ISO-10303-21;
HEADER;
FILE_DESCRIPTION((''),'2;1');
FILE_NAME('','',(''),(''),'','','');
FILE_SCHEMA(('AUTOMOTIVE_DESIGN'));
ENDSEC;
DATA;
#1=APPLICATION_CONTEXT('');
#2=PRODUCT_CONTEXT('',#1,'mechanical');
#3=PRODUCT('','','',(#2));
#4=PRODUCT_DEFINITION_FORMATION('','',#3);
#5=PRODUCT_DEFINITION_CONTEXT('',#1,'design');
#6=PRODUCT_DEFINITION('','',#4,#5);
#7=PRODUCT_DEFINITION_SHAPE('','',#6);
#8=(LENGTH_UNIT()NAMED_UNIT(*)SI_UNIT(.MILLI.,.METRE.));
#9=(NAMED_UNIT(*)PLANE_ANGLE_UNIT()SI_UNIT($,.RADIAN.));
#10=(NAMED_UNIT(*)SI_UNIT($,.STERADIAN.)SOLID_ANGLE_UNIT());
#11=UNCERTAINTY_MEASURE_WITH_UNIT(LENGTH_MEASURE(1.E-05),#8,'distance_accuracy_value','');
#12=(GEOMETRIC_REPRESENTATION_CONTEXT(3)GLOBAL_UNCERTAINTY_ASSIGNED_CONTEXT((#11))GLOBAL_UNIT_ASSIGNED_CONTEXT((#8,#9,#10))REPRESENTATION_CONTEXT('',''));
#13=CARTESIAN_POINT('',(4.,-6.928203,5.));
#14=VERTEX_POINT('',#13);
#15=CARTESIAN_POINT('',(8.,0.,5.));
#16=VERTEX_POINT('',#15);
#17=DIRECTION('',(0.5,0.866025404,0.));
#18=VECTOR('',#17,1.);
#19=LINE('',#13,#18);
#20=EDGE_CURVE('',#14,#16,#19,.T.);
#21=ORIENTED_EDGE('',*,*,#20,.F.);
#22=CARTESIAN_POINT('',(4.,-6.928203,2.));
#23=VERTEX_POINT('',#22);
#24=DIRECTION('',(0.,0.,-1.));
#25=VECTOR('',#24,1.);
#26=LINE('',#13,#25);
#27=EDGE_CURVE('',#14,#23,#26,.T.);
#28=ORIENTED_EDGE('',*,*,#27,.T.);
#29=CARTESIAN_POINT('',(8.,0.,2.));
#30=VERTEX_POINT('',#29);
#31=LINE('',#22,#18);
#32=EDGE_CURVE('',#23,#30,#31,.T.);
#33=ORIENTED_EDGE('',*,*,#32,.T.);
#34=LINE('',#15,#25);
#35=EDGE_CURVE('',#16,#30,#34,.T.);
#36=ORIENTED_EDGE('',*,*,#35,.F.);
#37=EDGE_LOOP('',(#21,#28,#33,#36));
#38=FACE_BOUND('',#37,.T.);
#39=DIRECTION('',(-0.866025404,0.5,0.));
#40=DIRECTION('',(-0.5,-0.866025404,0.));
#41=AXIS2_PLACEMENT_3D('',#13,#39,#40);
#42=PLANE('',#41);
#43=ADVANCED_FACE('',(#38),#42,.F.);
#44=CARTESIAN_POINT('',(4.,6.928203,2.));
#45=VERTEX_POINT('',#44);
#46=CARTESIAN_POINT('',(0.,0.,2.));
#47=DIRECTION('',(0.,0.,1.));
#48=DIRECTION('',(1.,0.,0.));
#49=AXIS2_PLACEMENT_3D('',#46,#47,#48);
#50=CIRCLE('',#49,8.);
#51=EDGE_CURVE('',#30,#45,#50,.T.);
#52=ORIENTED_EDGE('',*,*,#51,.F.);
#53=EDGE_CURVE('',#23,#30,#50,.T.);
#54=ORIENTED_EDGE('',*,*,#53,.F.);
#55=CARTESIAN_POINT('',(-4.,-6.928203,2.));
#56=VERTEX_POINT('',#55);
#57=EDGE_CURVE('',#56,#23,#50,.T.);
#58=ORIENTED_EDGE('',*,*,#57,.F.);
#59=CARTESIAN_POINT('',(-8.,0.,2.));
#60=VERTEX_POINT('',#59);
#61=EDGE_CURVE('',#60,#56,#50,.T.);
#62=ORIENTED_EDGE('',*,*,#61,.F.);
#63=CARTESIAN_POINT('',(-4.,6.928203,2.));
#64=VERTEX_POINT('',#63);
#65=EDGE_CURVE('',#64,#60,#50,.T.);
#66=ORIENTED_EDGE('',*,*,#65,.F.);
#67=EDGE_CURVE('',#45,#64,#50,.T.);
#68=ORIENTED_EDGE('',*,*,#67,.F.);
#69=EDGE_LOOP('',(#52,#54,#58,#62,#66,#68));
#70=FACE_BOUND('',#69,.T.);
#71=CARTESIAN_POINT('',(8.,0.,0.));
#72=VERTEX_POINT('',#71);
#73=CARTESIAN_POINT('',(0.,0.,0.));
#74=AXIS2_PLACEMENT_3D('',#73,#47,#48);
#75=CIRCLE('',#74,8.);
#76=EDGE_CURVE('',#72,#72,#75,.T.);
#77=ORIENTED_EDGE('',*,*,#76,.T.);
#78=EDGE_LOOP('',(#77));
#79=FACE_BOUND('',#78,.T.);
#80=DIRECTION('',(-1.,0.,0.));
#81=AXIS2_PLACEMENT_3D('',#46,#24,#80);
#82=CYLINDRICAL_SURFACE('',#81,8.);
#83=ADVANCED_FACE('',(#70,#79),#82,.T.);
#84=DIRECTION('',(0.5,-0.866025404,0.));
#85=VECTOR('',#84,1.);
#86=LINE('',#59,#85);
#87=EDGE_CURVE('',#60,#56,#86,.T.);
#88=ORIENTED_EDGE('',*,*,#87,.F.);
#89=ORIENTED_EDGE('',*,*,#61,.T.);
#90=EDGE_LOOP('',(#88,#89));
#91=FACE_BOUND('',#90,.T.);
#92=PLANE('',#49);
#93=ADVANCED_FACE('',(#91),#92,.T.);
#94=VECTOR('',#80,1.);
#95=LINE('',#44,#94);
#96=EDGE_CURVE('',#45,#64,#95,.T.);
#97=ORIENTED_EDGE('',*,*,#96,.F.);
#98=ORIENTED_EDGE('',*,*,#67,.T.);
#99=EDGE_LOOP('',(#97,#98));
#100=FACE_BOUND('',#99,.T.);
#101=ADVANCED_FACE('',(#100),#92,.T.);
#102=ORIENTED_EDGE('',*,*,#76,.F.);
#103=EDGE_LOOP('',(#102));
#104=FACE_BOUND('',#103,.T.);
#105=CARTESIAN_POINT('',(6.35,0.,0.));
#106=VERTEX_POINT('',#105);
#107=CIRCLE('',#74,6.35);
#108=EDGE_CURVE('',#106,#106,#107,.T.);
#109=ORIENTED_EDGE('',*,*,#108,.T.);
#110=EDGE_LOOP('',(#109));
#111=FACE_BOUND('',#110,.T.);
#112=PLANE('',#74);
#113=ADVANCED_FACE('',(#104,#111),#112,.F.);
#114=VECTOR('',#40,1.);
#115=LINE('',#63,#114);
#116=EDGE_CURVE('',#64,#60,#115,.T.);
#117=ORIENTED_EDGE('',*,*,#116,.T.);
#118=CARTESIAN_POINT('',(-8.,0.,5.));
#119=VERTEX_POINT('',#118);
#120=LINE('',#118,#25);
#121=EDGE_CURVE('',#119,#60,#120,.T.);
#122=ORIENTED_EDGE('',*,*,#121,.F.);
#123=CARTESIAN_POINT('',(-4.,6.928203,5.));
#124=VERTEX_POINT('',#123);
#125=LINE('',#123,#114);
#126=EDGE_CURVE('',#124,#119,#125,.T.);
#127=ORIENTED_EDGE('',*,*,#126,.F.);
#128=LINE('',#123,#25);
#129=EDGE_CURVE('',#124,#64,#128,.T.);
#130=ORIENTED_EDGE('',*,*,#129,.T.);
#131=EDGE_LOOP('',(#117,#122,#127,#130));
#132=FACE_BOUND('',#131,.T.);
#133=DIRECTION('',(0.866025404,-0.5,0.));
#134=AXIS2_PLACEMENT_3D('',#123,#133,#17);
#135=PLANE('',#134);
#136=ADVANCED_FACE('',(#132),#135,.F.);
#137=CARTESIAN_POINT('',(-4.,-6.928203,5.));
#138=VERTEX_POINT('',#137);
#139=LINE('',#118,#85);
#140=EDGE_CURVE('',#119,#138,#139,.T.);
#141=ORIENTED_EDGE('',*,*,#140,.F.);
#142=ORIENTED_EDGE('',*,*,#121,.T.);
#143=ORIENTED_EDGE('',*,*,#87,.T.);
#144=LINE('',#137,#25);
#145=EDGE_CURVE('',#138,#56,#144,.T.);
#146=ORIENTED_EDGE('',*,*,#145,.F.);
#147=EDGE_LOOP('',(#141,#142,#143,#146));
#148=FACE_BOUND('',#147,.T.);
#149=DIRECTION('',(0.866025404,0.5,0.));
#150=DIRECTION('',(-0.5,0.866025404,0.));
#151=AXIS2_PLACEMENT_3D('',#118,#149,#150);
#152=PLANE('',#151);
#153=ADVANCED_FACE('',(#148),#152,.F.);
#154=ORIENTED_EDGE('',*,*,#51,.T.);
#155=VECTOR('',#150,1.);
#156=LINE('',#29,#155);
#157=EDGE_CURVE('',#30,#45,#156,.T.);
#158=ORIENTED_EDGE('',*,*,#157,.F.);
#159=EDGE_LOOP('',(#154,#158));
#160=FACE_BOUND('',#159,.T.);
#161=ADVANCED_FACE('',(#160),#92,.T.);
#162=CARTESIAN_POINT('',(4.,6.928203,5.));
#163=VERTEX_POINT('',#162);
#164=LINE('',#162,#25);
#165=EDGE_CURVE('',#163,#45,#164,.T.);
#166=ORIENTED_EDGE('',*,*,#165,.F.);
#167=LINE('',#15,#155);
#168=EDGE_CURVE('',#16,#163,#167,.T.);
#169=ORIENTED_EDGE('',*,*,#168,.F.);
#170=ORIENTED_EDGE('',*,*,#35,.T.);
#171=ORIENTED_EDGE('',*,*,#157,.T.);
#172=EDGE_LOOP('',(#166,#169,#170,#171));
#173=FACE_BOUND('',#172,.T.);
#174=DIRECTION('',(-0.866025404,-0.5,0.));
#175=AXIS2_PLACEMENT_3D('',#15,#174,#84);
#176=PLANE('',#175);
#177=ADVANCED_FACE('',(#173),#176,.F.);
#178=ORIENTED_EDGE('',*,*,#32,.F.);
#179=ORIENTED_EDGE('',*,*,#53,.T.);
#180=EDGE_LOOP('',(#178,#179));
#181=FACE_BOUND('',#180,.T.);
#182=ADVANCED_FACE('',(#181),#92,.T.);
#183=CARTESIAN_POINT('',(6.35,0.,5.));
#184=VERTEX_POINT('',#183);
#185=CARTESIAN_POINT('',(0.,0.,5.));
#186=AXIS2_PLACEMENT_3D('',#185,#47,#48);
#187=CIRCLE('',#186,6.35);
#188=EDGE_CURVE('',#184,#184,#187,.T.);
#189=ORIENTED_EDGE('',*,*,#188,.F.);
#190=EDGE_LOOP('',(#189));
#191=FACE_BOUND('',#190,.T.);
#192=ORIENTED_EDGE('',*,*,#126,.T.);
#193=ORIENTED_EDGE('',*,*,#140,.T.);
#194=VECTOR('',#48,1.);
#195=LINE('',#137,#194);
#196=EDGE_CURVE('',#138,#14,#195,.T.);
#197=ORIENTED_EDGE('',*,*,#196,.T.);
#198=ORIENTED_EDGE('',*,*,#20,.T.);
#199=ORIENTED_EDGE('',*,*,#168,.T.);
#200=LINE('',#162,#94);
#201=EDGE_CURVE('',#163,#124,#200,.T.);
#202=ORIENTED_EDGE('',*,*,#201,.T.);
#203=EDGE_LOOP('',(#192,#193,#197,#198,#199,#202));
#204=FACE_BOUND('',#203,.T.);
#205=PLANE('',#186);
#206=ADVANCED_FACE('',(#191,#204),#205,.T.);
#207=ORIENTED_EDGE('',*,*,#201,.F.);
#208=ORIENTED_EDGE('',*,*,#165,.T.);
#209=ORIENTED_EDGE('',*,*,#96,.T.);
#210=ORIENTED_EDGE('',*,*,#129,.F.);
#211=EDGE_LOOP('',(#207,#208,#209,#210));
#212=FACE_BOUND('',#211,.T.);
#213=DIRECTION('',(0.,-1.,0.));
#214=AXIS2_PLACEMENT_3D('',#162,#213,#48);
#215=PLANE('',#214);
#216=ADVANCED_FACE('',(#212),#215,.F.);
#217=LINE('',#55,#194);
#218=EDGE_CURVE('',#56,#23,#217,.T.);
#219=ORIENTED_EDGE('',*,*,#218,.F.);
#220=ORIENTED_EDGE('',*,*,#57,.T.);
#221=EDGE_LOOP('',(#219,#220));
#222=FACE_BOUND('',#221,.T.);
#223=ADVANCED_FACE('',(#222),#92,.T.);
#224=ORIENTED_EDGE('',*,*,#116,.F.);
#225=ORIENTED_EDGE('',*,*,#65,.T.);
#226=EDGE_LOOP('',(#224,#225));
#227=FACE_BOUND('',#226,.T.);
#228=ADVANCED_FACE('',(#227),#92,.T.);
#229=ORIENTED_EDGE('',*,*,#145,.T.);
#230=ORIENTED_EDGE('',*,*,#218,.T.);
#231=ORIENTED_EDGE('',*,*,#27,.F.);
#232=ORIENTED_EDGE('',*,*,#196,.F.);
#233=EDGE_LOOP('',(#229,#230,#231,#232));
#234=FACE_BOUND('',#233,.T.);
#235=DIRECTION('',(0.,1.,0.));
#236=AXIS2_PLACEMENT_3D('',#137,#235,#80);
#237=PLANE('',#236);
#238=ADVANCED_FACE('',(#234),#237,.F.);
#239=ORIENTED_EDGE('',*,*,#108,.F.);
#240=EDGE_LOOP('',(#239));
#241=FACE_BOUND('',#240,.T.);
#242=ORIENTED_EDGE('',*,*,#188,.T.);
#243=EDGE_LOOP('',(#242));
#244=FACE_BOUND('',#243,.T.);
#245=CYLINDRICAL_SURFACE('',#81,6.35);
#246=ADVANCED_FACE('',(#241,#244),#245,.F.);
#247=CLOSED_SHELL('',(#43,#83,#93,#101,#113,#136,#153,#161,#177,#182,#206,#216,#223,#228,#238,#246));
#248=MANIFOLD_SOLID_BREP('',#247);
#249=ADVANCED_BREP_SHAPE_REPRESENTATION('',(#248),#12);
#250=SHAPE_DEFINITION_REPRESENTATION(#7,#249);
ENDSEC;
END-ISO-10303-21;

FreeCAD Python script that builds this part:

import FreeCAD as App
import Part
import Sketcher
from FreeCAD import Vector
Q = App.Units.Quantity


def add_polygon(sketch, points):
    """Adds a closed chain of lines whose ends are joined by coincident constraints."""
    first, n = sketch.GeometryCount, len(points)
    for a, b in zip(points, points[1:] + points[:1]):
        sketch.addGeometry(Part.LineSegment(App.Vector(*a, 0), App.Vector(*b, 0)), False)
    for i in range(n):
        sketch.addConstraint(Sketcher.Constraint("Coincident", first + i, 2, first + (i + 1) % n, 1))

doc = App.newDocument("Part")
body = doc.addObject("PartDesign::Body", "Body")

# Sketch on XY plane
sketch1 = body.newObject("Sketcher::SketchObject", "Sketch")
sketch1.AttachmentSupport = (doc.getObject("XY_Plane"), [""])
sketch1.MapMode = "FlatFace"
sketch1.addGeometry([
    Part.Circle(Vector(0, 0, 0), Vector(0, 0, 1), 8),
    Part.Circle(Vector(0, 0, 0), Vector(0, 0, 1), 6),
], False)
sketch1.addConstraint([
    Sketcher.Constraint("Coincident", 0, 3, -1, 1),
    Sketcher.Constraint("Coincident", 1, 3, -1, 1),
    Sketcher.Constraint("Diameter", 0, 16.0),
    Sketcher.Constraint("Diameter", 1, 12.7),
])
pad1 = body.newObject("PartDesign::Pad", "Pad")
pad1.Profile = sketch1
pad1.Length = 2

# Sketch on XY plane
sketch2 = body.newObject("Sketcher::SketchObject", "Sketch001")
sketch2.AttachmentSupport = (doc.getObject("XY_Plane"), [""])
sketch2.MapMode = "FlatFace"
sketch2.AttachmentOffset = App.Placement(Vector(0, 0, 2), App.Rotation())
add_polygon(sketch2, [(8, 0), (4, 7), (-4, 7), (-8, 0), (-4, -7), (4, -7)])  # lines 0-5
sketch2.addGeometry(Part.Circle(Vector(0, 0, 0), Vector(0, 0, 1), 6), False)  # 6
sketch2.addConstraint([
    Sketcher.Constraint("Horizontal", 1),
    Sketcher.Constraint("Horizontal", 4),
    Sketcher.Constraint("Coincident", 6, 3, -1, 1),
    Sketcher.Constraint("Symmetric", 0, 2, 3, 2, -1, 1),
    Sketcher.Constraint("Symmetric", 2, 2, 5, 2, -1, 1),
    Sketcher.Constraint("PointOnObject", 2, 2, -1),
    Sketcher.Constraint("Parallel", 2, 5),
    Sketcher.Constraint("Vertical", 1, 2, 3, 2),
    Sketcher.Constraint("Diameter", 6, 12.7),
    Sketcher.Constraint("DistanceX", 1, 2, 1, 1, 8.0),
    Sketcher.Constraint("Angle", 0, Q("120 deg")),
    Sketcher.Constraint("Distance", 0, 8.0),
])
pad2 = body.newObject("PartDesign::Pad", "Pad001")
pad2.Profile = sketch2
pad2.Length = 3

doc.recompute()
